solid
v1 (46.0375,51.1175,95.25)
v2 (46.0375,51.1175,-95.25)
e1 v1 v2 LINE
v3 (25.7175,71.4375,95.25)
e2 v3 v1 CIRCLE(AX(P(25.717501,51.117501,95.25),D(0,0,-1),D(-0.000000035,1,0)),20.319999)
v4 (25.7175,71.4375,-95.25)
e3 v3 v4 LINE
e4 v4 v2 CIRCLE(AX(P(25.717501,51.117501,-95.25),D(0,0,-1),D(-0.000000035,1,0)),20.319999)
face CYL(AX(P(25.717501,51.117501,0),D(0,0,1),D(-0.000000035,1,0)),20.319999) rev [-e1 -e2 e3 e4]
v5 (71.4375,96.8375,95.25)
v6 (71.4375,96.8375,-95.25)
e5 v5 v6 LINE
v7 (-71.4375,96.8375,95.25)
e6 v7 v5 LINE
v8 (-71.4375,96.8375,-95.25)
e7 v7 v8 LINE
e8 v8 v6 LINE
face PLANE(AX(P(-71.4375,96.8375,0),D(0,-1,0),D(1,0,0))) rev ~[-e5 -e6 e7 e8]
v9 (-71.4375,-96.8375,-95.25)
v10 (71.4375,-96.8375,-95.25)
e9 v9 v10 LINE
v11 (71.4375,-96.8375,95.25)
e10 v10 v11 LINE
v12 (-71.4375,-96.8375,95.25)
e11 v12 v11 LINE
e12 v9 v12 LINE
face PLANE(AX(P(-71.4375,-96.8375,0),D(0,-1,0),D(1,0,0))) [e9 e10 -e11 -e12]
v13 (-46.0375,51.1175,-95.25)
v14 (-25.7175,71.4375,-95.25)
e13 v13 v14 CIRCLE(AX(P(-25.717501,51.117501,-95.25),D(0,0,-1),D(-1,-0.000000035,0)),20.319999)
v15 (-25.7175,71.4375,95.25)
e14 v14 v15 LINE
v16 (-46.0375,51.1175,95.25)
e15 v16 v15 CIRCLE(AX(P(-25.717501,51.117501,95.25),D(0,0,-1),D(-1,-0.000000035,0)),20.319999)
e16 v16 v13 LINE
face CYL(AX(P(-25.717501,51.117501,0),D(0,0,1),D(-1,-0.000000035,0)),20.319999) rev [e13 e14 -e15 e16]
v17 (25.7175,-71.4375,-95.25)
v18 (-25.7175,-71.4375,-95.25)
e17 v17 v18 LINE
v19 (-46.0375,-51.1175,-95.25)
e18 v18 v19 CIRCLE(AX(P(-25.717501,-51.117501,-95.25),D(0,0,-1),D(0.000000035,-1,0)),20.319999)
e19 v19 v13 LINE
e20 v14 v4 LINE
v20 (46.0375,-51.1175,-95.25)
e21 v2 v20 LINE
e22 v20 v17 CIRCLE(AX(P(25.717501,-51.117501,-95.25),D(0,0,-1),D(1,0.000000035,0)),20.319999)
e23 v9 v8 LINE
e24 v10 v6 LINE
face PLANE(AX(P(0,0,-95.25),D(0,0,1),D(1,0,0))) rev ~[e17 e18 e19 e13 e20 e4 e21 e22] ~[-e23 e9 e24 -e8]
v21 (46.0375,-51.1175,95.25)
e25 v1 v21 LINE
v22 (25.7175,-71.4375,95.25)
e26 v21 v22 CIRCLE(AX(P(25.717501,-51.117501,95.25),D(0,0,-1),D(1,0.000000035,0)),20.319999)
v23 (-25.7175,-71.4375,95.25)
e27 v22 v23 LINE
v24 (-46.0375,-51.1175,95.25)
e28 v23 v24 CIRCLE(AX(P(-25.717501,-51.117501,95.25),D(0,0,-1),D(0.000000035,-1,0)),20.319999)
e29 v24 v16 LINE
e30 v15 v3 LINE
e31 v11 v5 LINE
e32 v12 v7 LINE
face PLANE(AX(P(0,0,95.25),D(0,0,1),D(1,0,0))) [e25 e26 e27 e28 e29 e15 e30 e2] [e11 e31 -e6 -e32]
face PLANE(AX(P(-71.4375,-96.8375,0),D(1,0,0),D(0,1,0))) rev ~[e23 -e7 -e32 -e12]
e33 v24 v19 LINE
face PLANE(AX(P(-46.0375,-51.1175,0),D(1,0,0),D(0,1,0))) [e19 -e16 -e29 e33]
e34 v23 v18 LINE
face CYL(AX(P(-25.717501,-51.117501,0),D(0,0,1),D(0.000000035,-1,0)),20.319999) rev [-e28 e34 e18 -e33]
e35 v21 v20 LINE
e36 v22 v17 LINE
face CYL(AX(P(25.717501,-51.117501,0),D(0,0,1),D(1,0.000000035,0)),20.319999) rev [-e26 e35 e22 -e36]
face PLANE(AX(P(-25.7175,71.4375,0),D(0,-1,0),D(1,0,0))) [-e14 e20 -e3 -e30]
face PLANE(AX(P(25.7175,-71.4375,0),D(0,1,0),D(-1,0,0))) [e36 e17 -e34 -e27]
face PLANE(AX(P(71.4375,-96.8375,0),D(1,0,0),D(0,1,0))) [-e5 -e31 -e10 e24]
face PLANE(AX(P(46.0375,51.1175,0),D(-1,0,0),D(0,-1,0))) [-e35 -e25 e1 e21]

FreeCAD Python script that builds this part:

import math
import FreeCAD as App
import Part
import Sketcher
from FreeCAD import Vector
Q = App.Units.Quantity


def add_polygon(sketch, points):
    """Adds a closed chain of lines whose ends are joined by coincident constraints."""
    first, n = sketch.GeometryCount, len(points)
    for a, b in zip(points, points[1:] + points[:1]):
        sketch.addGeometry(Part.LineSegment(App.Vector(*a, 0), App.Vector(*b, 0)), False)
    for i in range(n):
        sketch.addConstraint(Sketcher.Constraint("Coincident", first + i, 2, first + (i + 1) % n, 1))

doc = App.newDocument("Part")
body = doc.addObject("PartDesign::Body", "Body")

# Sketch on XY plane
sketch1 = doc.addObject("Sketcher::SketchObject", "Sketch")
body.addObject(sketch1)
sketch1.AttachmentSupport = (doc.XY_Plane, [""])
sketch1.MapMode = "FlatFace"
add_polygon(sketch1, [(-71, 97), (-71, -97), (71, -97), (71, 97)])  # lines 0-3
sketch1.addGeometry(Part.ArcOfCircle(Part.Circle(Vector(-26, 51, 0), Vector(0, 0, 1), 20), math.radians(90), math.radians(180)), False)  # 4
sketch1.addGeometry(Part.LineSegment(Vector(-26, 71, 0), Vector(26, 71, 0)), False)  # 5
sketch1.addGeometry(Part.ArcOfCircle(Part.Circle(Vector(26, 51, 0), Vector(0, 0, 1), 20), math.radians(0), math.radians(90)), False)  # 6
sketch1.addGeometry(Part.LineSegment(Vector(46, 51, 0), Vector(46, -51, 0)), False)  # 7
sketch1.addGeometry(Part.ArcOfCircle(Part.Circle(Vector(26, -51, 0), Vector(0, 0, 1), 20), math.radians(-90), math.radians(0)), False)  # 8
sketch1.addGeometry(Part.LineSegment(Vector(26, -71, 0), Vector(-26, -71, 0)), False)  # 9
sketch1.addGeometry(Part.ArcOfCircle(Part.Circle(Vector(-26, -51, 0), Vector(0, 0, 1), 20), math.radians(180), math.radians(270)), False)  # 10
sketch1.addGeometry(Part.LineSegment(Vector(-46, -51, 0), Vector(-46, 51, 0)), False)  # 11
sketch1.addConstraint(Sketcher.Constraint("Tangent", 4, 1, 5, 1))
sketch1.addConstraint(Sketcher.Constraint("Tangent", 5, 2, 6, 2))
sketch1.addConstraint(Sketcher.Constraint("Tangent", 6, 1, 7, 1))
sketch1.addConstraint(Sketcher.Constraint("Tangent", 7, 2, 8, 2))
sketch1.addConstraint(Sketcher.Constraint("Tangent", 8, 1, 9, 1))
sketch1.addConstraint(Sketcher.Constraint("Tangent", 9, 2, 10, 2))
sketch1.addConstraint(Sketcher.Constraint("Tangent", 10, 1, 11, 1))
sketch1.addConstraint(Sketcher.Constraint("Tangent", 11, 2, 4, 2))
sketch1.addConstraint(Sketcher.Constraint("Vertical", 0))
sketch1.addConstraint(Sketcher.Constraint("Horizontal", 1))
sketch1.addConstraint(Sketcher.Constraint("Vertical", 2))
sketch1.addConstraint(Sketcher.Constraint("Horizontal", 3))
sketch1.addConstraint(Sketcher.Constraint("Horizontal", 5))
sketch1.addConstraint(Sketcher.Constraint("Vertical", 7))
sketch1.addConstraint(Sketcher.Constraint("Horizontal", 9))
sketch1.addConstraint(Sketcher.Constraint("Vertical", 11))
sketch1.addConstraint(Sketcher.Constraint("Equal", 4, 6))
sketch1.addConstraint(Sketcher.Constraint("Equal", 6, 8))
sketch1.addConstraint(Sketcher.Constraint("Equal", 8, 10))
sketch1.addConstraint(Sketcher.Constraint("Symmetric", 4, 3, 8, 3, -1, 1))
sketch1.addConstraint(Sketcher.Constraint("Symmetric", 0, 2, 2, 2, -1, 1))
sketch1.addConstraint(Sketcher.Constraint("Radius", 4, Q("0.8 in")))
sketch1.addConstraint(Sketcher.Constraint("DistanceY", 4, 1, 3, 2, Q("1 in")))
sketch1.addConstraint(Sketcher.Constraint("DistanceX", 6, 1, 2, 2, Q("1 in")))
sketch1.addConstraint(Sketcher.Constraint("DistanceX", 1, 1, 1, 2, Q("5.625 in")))
sketch1.addConstraint(Sketcher.Constraint("DistanceY", 0, 2, 0, 1, Q("7.625 in")))
pad1 = doc.addObject("PartDesign::Pad", "Pad")
body.addObject(pad1)
pad1.Profile = sketch1
pad1.Length = Q("7.5 in")
pad1.Midplane = True

doc.recompute()
